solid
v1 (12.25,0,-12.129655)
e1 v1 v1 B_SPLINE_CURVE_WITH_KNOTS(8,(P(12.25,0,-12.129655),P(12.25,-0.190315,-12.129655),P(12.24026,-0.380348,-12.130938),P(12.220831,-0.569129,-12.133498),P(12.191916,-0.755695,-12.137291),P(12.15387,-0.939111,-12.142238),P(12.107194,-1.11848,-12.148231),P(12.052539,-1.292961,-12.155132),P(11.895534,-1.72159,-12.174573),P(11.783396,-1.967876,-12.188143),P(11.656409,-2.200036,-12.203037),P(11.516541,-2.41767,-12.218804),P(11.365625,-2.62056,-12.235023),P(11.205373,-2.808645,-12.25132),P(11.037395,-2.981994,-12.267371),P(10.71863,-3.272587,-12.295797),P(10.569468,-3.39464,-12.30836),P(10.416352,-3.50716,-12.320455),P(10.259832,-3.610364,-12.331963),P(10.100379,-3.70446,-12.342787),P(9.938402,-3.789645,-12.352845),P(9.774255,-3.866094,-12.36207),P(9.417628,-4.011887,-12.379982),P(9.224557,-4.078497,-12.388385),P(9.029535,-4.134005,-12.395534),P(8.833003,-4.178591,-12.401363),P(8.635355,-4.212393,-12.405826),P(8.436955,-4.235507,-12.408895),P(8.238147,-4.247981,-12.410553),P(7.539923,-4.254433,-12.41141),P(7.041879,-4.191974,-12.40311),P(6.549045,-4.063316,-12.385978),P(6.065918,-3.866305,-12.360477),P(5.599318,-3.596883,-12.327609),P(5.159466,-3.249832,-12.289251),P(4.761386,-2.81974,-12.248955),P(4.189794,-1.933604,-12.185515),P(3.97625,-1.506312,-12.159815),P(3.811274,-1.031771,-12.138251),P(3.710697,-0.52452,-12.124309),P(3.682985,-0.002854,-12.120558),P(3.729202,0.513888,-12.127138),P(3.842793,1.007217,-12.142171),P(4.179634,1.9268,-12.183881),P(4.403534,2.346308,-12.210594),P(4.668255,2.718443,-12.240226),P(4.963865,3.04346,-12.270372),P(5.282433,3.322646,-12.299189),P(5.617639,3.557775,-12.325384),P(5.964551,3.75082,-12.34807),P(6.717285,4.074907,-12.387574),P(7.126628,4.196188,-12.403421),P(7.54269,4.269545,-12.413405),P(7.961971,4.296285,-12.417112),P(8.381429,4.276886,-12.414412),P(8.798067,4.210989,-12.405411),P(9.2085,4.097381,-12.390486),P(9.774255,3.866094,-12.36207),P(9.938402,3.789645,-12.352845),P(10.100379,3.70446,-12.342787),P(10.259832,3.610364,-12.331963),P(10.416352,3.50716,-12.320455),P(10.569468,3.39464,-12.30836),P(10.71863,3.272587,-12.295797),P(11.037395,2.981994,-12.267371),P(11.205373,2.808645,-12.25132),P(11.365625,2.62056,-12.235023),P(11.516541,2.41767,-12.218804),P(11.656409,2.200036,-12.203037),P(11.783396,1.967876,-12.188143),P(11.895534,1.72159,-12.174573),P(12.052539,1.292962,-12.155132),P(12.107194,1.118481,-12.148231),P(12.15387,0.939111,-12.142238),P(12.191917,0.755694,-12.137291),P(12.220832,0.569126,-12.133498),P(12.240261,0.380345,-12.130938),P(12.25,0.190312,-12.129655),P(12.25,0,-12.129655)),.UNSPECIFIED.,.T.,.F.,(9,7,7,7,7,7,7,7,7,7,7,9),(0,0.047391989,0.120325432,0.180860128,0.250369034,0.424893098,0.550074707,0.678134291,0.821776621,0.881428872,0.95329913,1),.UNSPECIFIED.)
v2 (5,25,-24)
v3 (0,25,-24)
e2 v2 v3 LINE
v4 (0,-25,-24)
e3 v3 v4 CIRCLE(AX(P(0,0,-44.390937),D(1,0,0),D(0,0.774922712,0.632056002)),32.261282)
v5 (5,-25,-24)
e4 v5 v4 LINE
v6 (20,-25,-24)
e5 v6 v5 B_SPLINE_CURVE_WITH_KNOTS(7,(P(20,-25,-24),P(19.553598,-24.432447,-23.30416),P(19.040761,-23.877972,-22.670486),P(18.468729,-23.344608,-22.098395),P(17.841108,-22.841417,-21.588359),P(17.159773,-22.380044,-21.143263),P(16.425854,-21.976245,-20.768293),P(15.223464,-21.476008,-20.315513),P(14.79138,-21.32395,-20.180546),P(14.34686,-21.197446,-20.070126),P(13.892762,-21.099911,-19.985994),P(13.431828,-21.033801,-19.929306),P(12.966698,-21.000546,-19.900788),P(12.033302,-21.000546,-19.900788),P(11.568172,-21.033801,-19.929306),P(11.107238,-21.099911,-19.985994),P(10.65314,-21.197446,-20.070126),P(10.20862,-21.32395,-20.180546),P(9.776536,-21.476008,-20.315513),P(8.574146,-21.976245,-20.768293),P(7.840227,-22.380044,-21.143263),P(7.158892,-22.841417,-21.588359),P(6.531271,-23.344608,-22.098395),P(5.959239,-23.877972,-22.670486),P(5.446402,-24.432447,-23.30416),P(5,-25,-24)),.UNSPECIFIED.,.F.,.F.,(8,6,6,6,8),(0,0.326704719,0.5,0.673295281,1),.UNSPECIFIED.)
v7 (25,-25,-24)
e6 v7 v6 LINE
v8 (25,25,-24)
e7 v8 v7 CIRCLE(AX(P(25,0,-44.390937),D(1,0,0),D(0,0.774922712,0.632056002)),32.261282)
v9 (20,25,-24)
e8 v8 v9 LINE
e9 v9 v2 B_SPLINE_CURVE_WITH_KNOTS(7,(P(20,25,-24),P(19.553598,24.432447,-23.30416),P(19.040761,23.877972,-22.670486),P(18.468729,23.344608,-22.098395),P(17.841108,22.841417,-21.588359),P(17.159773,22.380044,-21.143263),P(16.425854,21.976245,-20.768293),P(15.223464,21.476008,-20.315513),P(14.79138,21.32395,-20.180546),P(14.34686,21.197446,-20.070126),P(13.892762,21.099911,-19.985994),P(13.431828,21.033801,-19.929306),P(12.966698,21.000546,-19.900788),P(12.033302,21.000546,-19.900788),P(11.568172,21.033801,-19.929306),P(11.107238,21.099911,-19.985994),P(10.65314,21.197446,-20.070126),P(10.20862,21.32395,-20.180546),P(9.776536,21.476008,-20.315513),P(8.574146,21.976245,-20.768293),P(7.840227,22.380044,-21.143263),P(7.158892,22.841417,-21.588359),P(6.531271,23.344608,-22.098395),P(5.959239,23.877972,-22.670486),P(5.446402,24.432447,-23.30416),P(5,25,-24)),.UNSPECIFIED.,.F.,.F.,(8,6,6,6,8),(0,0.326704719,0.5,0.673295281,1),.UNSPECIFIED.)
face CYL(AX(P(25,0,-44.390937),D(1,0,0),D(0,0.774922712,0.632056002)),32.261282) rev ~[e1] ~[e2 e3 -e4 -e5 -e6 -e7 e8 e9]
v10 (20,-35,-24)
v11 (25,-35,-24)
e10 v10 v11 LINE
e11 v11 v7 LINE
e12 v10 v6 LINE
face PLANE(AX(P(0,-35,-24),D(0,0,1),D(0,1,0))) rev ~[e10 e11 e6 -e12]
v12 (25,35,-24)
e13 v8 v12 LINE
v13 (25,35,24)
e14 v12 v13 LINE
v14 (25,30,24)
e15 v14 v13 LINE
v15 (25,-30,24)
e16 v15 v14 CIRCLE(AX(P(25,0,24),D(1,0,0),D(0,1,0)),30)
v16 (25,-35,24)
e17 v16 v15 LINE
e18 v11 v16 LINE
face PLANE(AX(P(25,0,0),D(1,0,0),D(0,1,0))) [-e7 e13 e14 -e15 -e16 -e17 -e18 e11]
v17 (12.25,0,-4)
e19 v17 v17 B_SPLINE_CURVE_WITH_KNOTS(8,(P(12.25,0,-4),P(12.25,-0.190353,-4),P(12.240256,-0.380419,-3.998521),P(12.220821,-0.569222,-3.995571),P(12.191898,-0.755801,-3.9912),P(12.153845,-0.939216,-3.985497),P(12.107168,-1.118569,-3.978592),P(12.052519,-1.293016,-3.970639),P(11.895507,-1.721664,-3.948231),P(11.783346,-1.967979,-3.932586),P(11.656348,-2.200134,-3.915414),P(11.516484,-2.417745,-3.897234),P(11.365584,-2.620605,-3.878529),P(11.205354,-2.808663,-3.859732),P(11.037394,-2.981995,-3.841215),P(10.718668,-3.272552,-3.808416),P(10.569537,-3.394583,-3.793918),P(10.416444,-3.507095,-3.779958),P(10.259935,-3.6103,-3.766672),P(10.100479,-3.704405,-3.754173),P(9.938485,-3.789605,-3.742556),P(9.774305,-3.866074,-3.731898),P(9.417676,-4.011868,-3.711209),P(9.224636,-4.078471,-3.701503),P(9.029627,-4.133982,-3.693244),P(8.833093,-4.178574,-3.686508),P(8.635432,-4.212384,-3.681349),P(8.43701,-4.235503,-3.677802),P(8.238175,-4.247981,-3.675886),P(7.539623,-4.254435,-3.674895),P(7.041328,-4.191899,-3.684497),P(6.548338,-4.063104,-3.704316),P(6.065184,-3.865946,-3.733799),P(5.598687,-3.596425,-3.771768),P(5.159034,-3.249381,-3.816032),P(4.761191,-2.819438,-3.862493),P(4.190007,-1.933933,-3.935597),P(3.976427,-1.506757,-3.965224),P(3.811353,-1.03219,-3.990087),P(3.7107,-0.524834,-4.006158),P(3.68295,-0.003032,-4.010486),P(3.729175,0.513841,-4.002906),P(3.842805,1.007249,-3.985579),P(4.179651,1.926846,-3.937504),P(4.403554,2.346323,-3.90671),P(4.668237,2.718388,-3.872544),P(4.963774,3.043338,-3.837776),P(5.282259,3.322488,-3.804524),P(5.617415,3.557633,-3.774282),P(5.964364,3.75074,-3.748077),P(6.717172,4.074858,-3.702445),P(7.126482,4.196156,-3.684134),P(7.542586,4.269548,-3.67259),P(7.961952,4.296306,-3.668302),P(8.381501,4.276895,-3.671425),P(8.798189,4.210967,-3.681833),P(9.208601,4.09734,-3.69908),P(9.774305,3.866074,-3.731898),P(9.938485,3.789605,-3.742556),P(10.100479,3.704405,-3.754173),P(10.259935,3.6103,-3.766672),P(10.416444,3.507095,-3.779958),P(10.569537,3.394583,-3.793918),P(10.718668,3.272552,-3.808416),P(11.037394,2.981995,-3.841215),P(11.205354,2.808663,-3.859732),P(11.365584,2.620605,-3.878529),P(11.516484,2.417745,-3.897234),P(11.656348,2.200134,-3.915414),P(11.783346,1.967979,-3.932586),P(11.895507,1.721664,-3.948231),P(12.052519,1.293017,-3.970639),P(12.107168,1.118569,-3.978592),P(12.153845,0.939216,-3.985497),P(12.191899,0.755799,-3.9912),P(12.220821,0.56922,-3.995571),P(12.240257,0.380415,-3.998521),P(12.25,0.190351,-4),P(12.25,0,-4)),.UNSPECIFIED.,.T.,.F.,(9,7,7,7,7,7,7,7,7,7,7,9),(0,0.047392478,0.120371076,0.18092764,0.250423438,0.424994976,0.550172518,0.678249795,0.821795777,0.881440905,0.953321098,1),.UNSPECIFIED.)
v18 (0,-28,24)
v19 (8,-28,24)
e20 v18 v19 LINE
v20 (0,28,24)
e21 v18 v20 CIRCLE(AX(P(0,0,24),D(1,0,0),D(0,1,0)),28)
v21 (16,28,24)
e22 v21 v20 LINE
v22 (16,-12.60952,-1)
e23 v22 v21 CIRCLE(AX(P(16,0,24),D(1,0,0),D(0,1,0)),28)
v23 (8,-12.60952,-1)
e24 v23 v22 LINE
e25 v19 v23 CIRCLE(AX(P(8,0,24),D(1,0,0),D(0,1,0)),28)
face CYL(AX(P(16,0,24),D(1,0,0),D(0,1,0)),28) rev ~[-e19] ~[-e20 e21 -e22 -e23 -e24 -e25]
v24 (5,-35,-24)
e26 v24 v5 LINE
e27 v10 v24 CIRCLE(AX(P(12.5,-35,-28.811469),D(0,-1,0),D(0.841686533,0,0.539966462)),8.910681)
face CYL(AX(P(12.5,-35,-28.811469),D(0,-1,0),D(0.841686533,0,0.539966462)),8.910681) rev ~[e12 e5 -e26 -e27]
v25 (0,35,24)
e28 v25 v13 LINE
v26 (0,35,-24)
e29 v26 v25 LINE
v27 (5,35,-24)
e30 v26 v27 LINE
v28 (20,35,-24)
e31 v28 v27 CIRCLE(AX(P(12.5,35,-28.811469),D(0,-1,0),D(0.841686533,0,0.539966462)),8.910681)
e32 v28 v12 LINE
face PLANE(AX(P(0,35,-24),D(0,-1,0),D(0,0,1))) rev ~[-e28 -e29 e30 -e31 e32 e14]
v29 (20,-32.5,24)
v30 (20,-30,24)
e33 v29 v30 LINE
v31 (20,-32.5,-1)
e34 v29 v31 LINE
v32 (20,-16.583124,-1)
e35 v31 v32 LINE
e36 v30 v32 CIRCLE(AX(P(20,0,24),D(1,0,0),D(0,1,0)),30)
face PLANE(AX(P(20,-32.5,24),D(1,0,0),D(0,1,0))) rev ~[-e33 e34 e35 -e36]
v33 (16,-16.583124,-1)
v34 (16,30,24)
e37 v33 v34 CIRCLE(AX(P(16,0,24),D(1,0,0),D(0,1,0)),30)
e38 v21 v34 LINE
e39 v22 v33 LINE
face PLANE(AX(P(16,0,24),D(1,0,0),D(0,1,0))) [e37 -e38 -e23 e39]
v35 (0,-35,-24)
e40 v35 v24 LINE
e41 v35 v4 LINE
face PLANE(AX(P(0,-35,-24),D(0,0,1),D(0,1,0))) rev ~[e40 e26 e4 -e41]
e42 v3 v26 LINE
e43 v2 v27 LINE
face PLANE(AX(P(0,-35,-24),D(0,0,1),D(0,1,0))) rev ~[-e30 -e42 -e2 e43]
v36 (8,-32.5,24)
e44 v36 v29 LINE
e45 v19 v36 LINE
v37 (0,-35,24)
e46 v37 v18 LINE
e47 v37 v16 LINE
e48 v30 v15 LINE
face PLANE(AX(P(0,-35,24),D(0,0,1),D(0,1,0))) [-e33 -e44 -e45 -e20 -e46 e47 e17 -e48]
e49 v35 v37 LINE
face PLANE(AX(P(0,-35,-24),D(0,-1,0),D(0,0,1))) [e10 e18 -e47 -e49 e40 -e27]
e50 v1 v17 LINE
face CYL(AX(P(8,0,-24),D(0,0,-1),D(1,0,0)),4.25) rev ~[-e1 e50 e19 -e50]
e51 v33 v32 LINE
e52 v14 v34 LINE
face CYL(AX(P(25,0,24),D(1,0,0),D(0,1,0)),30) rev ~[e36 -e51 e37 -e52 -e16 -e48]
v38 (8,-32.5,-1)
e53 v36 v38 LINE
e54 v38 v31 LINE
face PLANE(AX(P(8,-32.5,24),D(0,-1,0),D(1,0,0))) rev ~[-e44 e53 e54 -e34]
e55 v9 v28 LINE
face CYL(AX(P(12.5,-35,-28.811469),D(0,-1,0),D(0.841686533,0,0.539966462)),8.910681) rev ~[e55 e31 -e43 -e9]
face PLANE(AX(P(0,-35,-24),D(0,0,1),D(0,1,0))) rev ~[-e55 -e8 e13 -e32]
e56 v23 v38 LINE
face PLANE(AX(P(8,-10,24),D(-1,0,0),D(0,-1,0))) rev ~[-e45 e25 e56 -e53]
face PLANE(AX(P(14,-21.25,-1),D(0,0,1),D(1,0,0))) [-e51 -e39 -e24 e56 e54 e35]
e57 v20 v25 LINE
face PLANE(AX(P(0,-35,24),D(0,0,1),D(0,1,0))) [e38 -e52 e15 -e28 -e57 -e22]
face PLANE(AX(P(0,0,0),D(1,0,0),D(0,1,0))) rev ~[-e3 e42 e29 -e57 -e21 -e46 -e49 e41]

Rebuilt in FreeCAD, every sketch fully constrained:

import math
import FreeCAD as App
import Part
import Sketcher

V = App.Vector
Q = App.Units.Quantity

doc = App.newDocument("Part")
params = doc.addObject("Spreadsheet::Sheet", "Params")
for row, (alias, value) in enumerate([
    ("sketch1_width", "70 mm"),
    ("sketch1_height", "48 mm"),
    ("pad1_length", "25 mm"),
    ("sketch2_diameter", "60 mm"),
    ("pocket1_length", "9 mm"),
    ("sketch3_diameter", "56 mm"),
    ("pocket2_length", "25 mm"),
    ("sketch4_diameter", "8.5 mm"),
    ("pocket3_length", "25 mm"),
    ("sketch5_width", "12 mm"),
    ("sketch5_height", "22.5 mm"),
    ("pocket4_length", "25 mm"),
    ("sketch6_width", "50 mm"),
    ("pocket5_length", "25 mm"),
    ("sketch7_width", "15 mm"),
    ("pocket6_length", "75 mm"),
], start=1):
    params.set(f"A{row}", alias)
    params.set(f"B{row}", "=" + value)
    params.setAlias(f"B{row}", alias)

body = doc.addObject("PartDesign::Body", "Body")

sketch1 = body.newObject("Sketcher::SketchObject", "Sketch")
sketch1.AttachmentSupport = (doc.getObject("YZ_Plane"), [""])
sketch1.MapMode = "FlatFace"
sketch1.addGeometry(Part.LineSegment(V(-35, 24, 0), V(-35, -24, 0)), False)
sketch1.addGeometry(Part.LineSegment(V(-35, -24, 0), V(35, -24, 0)), False)
sketch1.addGeometry(Part.LineSegment(V(35, -24, 0), V(35, 24, 0)), False)
sketch1.addGeometry(Part.LineSegment(V(35, 24, 0), V(-35, 24, 0)), False)
sketch1.addConstraint(Sketcher.Constraint("Coincident", 0, 2, 1, 1))
sketch1.addConstraint(Sketcher.Constraint("Coincident", 1, 2, 2, 1))
sketch1.addConstraint(Sketcher.Constraint("Coincident", 2, 2, 3, 1))
sketch1.addConstraint(Sketcher.Constraint("Coincident", 3, 2, 0, 1))
sketch1.addConstraint(Sketcher.Constraint("Vertical", 0))
sketch1.addConstraint(Sketcher.Constraint("Horizontal", 1))
sketch1.addConstraint(Sketcher.Constraint("Vertical", 2))
sketch1.addConstraint(Sketcher.Constraint("Horizontal", 3))
sketch1.addConstraint(Sketcher.Constraint("Symmetric", 0, 2, 2, 2, -1, 1))
sketch1.addConstraint(Sketcher.Constraint("DistanceX", 1, 1, 1, 2, Q("70 mm")))
sketch1.addConstraint(Sketcher.Constraint("DistanceY", 0, 2, 0, 1, Q("48 mm")))
sketch1.setExpression("Constraints[9]", "Params.sketch1_width")
sketch1.setExpression("Constraints[10]", "Params.sketch1_height")
pad1 = body.newObject("PartDesign::Pad", "Pad")
pad1.Profile = sketch1
pad1.setExpression("Length", "Params.pad1_length")

sketch2 = body.newObject("Sketcher::SketchObject", "Sketch001")
sketch2.AttachmentSupport = (doc.getObject("YZ_Plane"), [""])
sketch2.MapMode = "FlatFace"
sketch2.AttachmentOffset = App.Placement(V(0, 0, 25), App.Rotation())
sketch2.addGeometry(Part.Circle(V(0, 24, 0), V(0, 0, 1), 30), False)
sketch2.addConstraint(Sketcher.Constraint("PointOnObject", 0, 3, -2))
sketch2.addConstraint(Sketcher.Constraint("Diameter", 0, Q("60 mm")))
sketch2.addConstraint(Sketcher.Constraint("DistanceY", -1, 1, 0, 3, Q("24 mm")))
sketch2.setExpression("Constraints[1]", "Params.sketch2_diameter")
pocket1 = body.newObject("PartDesign::Pocket", "Pocket")
pocket1.Profile = sketch2
pocket1.setExpression("Length", "Params.pocket1_length")

sketch3 = body.newObject("Sketcher::SketchObject", "Sketch002")
sketch3.AttachmentSupport = (doc.getObject("YZ_Plane"), [""])
sketch3.MapMode = "FlatFace"
sketch3.AttachmentOffset = App.Placement(V(0, 0, 16), App.Rotation())
sketch3.addGeometry(Part.Circle(V(0, 24, 0), V(0, 0, 1), 28), False)
sketch3.addConstraint(Sketcher.Constraint("PointOnObject", 0, 3, -2))
sketch3.addConstraint(Sketcher.Constraint("Diameter", 0, Q("56 mm")))
sketch3.addConstraint(Sketcher.Constraint("DistanceY", -1, 1, 0, 3, Q("24 mm")))
sketch3.setExpression("Constraints[1]", "Params.sketch3_diameter")
pocket2 = body.newObject("PartDesign::Pocket", "Pocket001")
pocket2.Profile = sketch3
pocket2.setExpression("Length", "Params.pocket2_length")

sketch4 = body.newObject("Sketcher::SketchObject", "Sketch003")
sketch4.AttachmentSupport = (doc.getObject("XY_Plane"), [""])
sketch4.MapMode = "FlatFace"
sketch4.AttachmentOffset = App.Placement(V(0, 0, -24), App.Rotation())
sketch4.addGeometry(Part.Circle(V(8, 0, 0), V(0, 0, 1), 4.25), False)
sketch4.addConstraint(Sketcher.Constraint("PointOnObject", 0, 3, -1))
sketch4.addConstraint(Sketcher.Constraint("Diameter", 0, Q("8.5 mm")))
sketch4.addConstraint(Sketcher.Constraint("DistanceX", -1, 1, 0, 3, Q("8 mm")))
sketch4.setExpression("Constraints[1]", "Params.sketch4_diameter")
pocket3 = body.newObject("PartDesign::Pocket", "Pocket002")
pocket3.Profile = sketch4
pocket3.setExpression("Length", "Params.pocket3_length")
pocket3.Reversed = True

sketch5 = body.newObject("Sketcher::SketchObject", "Sketch004")
sketch5.AttachmentSupport = (doc.getObject("XY_Plane"), [""])
sketch5.MapMode = "FlatFace"
sketch5.AttachmentOffset = App.Placement(V(0, 0, 24), App.Rotation())
sketch5.addGeometry(Part.LineSegment(V(8, -32.5, 0), V(20, -32.5, 0)), False)
sketch5.addGeometry(Part.LineSegment(V(20, -32.5, 0), V(20, -10, 0)), False)
sketch5.addGeometry(Part.LineSegment(V(20, -10, 0), V(8, -10, 0)), False)
sketch5.addGeometry(Part.LineSegment(V(8, -10, 0), V(8, -32.5, 0)), False)
sketch5.addConstraint(Sketcher.Constraint("Coincident", 0, 2, 1, 1))
sketch5.addConstraint(Sketcher.Constraint("Coincident", 1, 2, 2, 1))
sketch5.addConstraint(Sketcher.Constraint("Coincident", 2, 2, 3, 1))
sketch5.addConstraint(Sketcher.Constraint("Coincident", 3, 2, 0, 1))
sketch5.addConstraint(Sketcher.Constraint("Horizontal", 0))
sketch5.addConstraint(Sketcher.Constraint("Vertical", 1))
sketch5.addConstraint(Sketcher.Constraint("Horizontal", 2))
sketch5.addConstraint(Sketcher.Constraint("Vertical", 3))
sketch5.addConstraint(Sketcher.Constraint("DistanceX", 0, 1, 0, 2, Q("12 mm")))
sketch5.addConstraint(Sketcher.Constraint("DistanceY", 1, 1, 1, 2, Q("22.5 mm")))
sketch5.addConstraint(Sketcher.Constraint("DistanceX", -1, 1, 0, 2, Q("20 mm")))
sketch5.addConstraint(Sketcher.Constraint("DistanceY", 1, 2, -1, 1, Q("10 mm")))
sketch5.setExpression("Constraints[8]", "Params.sketch5_width")
sketch5.setExpression("Constraints[9]", "Params.sketch5_height")
pocket4 = body.newObject("PartDesign::Pocket", "Pocket003")
pocket4.Profile = sketch5
pocket4.setExpression("Length", "Params.pocket4_length")

sketch6 = body.newObject("Sketcher::SketchObject", "Sketch005")
sketch6.AttachmentSupport = (doc.getObject("YZ_Plane"), [""])
sketch6.MapMode = "FlatFace"
sketch6.AttachmentOffset = App.Placement(V(0, 0, 25), App.Rotation())
sketch6.addGeometry(Part.LineSegment(V(25, -30.528549, 0), V(25, -24, 0)), False)
sketch6.addGeometry(Part.ArcOfCircle(Part.Circle(V(0, -44.390937, 0), V(0, 0, 1), 32.261282), math.radians(39.201974), math.radians(140.798026)), False)
sketch6.addGeometry(Part.LineSegment(V(-25, -24, 0), V(-25, -30.528549, 0)), False)
sketch6.addGeometry(Part.LineSegment(V(-25, -30.528549, 0), V(25, -30.528549, 0)), False)
sketch6.addConstraint(Sketcher.Constraint("Coincident", 0, 2, 1, 1))
sketch6.addConstraint(Sketcher.Constraint("Coincident", 1, 2, 2, 1))
sketch6.addConstraint(Sketcher.Constraint("Coincident", 2, 2, 3, 1))
sketch6.addConstraint(Sketcher.Constraint("Coincident", 3, 2, 0, 1))
sketch6.addConstraint(Sketcher.Constraint("Vertical", 0))
sketch6.addConstraint(Sketcher.Constraint("Vertical", 2))
sketch6.addConstraint(Sketcher.Constraint("Horizontal", 3))
sketch6.addConstraint(Sketcher.Constraint("Symmetric", 0, 2, 1, 2, -2))
sketch6.addConstraint(Sketcher.Constraint("DistanceX", 3, 1, 3, 2, Q("50 mm")))
sketch6.addConstraint(Sketcher.Constraint("DistanceY", 0, 2, -1, 1, Q("24 mm")))
sketch6.addConstraint(Sketcher.Constraint("Radius", 1, Q("32.261282 mm")))
sketch6.addConstraint(Sketcher.Constraint("DistanceY", 0, 1, 0, 2, Q("6.528549 mm")))
sketch6.setExpression("Constraints[8]", "Params.sketch6_width")
pocket5 = body.newObject("PartDesign::Pocket", "Pocket004")
pocket5.Profile = sketch6
pocket5.setExpression("Length", "Params.pocket5_length")

sketch7 = body.newObject("Sketcher::SketchObject", "Sketch006")
sketch7.AttachmentSupport = (doc.getObject("XZ_Plane"), [""])
sketch7.MapMode = "FlatFace"
sketch7.AttachmentOffset = App.Placement(V(0, 0, 35), App.Rotation())
sketch7.addGeometry(Part.LineSegment(V(20, -27.683428, 0), V(20, -24, 0)), False)
sketch7.addGeometry(Part.ArcOfCircle(Part.Circle(V(12.5, -28.811469, 0), V(0, 0, 1), 8.910681), math.radians(32.681356), math.radians(147.318644)), False)
sketch7.addGeometry(Part.LineSegment(V(5, -24, 0), V(5, -27.683428, 0)), False)
sketch7.addGeometry(Part.LineSegment(V(5, -27.683428, 0), V(20, -27.683428, 0)), False)
sketch7.addConstraint(Sketcher.Constraint("Coincident", 0, 2, 1, 1))
sketch7.addConstraint(Sketcher.Constraint("Coincident", 1, 2, 2, 1))
sketch7.addConstraint(Sketcher.Constraint("Coincident", 2, 2, 3, 1))
sketch7.addConstraint(Sketcher.Constraint("Coincident", 3, 2, 0, 1))
sketch7.addConstraint(Sketcher.Constraint("Vertical", 0))
sketch7.addConstraint(Sketcher.Constraint("Vertical", 2))
sketch7.addConstraint(Sketcher.Constraint("Horizontal", 3))
sketch7.addConstraint(Sketcher.Constraint("Horizontal", 0, 2, 1, 2))
sketch7.addConstraint(Sketcher.Constraint("DistanceX", 3, 1, 3, 2, Q("15 mm")))
sketch7.addConstraint(Sketcher.Constraint("DistanceX", -1, 1, 0, 2, Q("20 mm")))
sketch7.addConstraint(Sketcher.Constraint("DistanceY", 0, 2, -1, 1, Q("24 mm")))
sketch7.addConstraint(Sketcher.Constraint("Radius", 1, Q("8.910681 mm")))
sketch7.addConstraint(Sketcher.Constraint("DistanceY", 0, 1, 0, 2, Q("3.683428 mm")))
sketch7.setExpression("Constraints[8]", "Params.sketch7_width")
pocket6 = body.newObject("PartDesign::Pocket", "Pocket005")
pocket6.Profile = sketch7
pocket6.setExpression("Length", "Params.pocket6_length")

doc.recompute()
